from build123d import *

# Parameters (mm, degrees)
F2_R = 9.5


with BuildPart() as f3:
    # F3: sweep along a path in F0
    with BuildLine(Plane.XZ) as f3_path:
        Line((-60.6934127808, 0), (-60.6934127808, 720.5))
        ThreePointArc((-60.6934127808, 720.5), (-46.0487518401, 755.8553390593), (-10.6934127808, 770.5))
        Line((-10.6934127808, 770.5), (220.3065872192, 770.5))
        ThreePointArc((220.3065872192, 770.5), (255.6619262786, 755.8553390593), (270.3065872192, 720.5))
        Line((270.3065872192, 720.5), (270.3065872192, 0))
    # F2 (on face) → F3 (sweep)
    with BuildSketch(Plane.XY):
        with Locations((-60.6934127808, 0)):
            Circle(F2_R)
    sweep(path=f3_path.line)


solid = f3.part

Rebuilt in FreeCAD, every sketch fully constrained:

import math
import FreeCAD as App
import Part
import Sketcher

doc = App.newDocument("Part")
body = doc.addObject("PartDesign::Body", "Body")

# Sketch on XY plane
sketch1 = body.newObject("Sketcher::SketchObject", "Sketch")
sketch1.AttachmentSupport = (doc.getObject("XY_Plane"), [""])
sketch1.MapMode = "FlatFace"
sketch1.addGeometry(Part.Circle(App.Vector(-60.693413, 0, 0), App.Vector(0, 0, 1), 9.5), False)
sketch1.addConstraint([
    Sketcher.Constraint("PointOnObject", 0, 3, -1),
    Sketcher.Constraint("Diameter", 0, 19.0),
    Sketcher.Constraint("DistanceX", 0, 3, -1, 1, 60.693413),
])

# Sketch on XZ plane
sketch2 = body.newObject("Sketcher::SketchObject", "Sketch001")
sketch2.AttachmentSupport = (doc.getObject("XZ_Plane"), [""])
sketch2.MapMode = "FlatFace"
sketch2.addGeometry([
    Part.LineSegment(App.Vector(-60.693413, 0, 0), App.Vector(-60.693413, 720.5, 0)),  # 0
    Part.ArcOfCircle(Part.Circle(App.Vector(-10.693413, 720.5, 0), App.Vector(0, 0, 1), 50), math.radians(90), math.radians(180)),  # 1
    Part.LineSegment(App.Vector(-10.693413, 770.5, 0), App.Vector(220.306587, 770.5, 0)),  # 2
    Part.ArcOfCircle(Part.Circle(App.Vector(220.306587, 720.5, 0), App.Vector(0, 0, 1), 50), math.radians(0), math.radians(90)),  # 3
    Part.LineSegment(App.Vector(270.306587, 720.5, 0), App.Vector(270.306587, 0, 0)),  # 4
], False)
sketch2.addConstraint([
    Sketcher.Constraint("Tangent", 0, 2, 1, 2),
    Sketcher.Constraint("Tangent", 1, 1, 2, 1),
    Sketcher.Constraint("Tangent", 2, 2, 3, 2),
    Sketcher.Constraint("Tangent", 3, 1, 4, 1),
    Sketcher.Constraint("Vertical", 0),
    Sketcher.Constraint("Horizontal", 2),
    Sketcher.Constraint("Vertical", 4),
    Sketcher.Constraint("Equal", 1, 3),
    Sketcher.Constraint("PointOnObject", 0, 1, -1),
    Sketcher.Constraint("PointOnObject", 4, 2, -1),
    Sketcher.Constraint("Radius", 1, 50.0),
    Sketcher.Constraint("DistanceX", 2, 1, 2, 2, 231.0),
    Sketcher.Constraint("DistanceY", 0, 1, 0, 2, 720.5),
    Sketcher.Constraint("DistanceX", 1, 3, -1, 1, 10.693413),
])
doc.recompute()

additivepipe = body.newObject("PartDesign::AdditivePipe", "AdditivePipe")
additivepipe.Profile = sketch1
additivepipe.Spine = (sketch2, ["Edge1", "Edge2", "Edge3", "Edge4", "Edge5"])

doc.recompute()
